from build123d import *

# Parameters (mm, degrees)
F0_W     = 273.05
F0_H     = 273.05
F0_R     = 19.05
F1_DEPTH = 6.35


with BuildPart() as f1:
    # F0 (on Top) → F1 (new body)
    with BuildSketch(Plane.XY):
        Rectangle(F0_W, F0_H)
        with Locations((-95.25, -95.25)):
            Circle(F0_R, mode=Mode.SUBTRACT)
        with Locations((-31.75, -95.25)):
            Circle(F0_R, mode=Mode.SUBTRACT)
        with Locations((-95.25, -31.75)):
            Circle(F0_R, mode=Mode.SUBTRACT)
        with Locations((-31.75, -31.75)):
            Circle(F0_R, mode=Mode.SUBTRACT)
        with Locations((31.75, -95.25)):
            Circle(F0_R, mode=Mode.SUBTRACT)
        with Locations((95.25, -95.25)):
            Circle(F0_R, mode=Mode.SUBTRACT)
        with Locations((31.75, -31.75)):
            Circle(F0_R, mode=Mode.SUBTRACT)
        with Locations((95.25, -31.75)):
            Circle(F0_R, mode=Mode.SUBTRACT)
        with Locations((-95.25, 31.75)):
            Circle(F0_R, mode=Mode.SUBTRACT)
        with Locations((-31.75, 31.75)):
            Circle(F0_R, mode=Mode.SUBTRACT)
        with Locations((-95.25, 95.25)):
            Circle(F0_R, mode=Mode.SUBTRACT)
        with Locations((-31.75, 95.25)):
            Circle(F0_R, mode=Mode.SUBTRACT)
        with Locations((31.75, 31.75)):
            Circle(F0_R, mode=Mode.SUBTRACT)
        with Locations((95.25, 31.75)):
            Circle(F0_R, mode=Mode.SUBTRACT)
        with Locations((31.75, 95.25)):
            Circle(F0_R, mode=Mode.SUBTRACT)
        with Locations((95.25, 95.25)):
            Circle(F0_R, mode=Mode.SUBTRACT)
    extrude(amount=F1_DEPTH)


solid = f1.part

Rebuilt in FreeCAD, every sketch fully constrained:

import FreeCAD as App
import Part
import Sketcher

V = App.Vector
Q = App.Units.Quantity

doc = App.newDocument("Part")
body = doc.addObject("PartDesign::Body", "Body")

sketch1 = doc.addObject("Sketcher::SketchObject", "Sketch")
body.addObject(sketch1)
sketch1.AttachmentSupport = (doc.XY_Plane, [""])
sketch1.MapMode = "FlatFace"
sketch1.addGeometry(Part.LineSegment(V(-136.525, 136.525, 0), V(-136.525, -136.525, 0)), False)
sketch1.addGeometry(Part.LineSegment(V(-136.525, -136.525, 0), V(136.525, -136.525, 0)), False)
sketch1.addGeometry(Part.LineSegment(V(136.525, -136.525, 0), V(136.525, 136.525, 0)), False)
sketch1.addGeometry(Part.LineSegment(V(136.525, 136.525, 0), V(-136.525, 136.525, 0)), False)
sketch1.addGeometry(Part.Circle(V(-95.25, -95.25, 0), V(0, 0, 1), 19.05), False)
sketch1.addGeometry(Part.Circle(V(-31.75, -95.25, 0), V(0, 0, 1), 19.05), False)
sketch1.addGeometry(Part.Circle(V(-95.25, -31.75, 0), V(0, 0, 1), 19.05), False)
sketch1.addGeometry(Part.Circle(V(-31.75, -31.75, 0), V(0, 0, 1), 19.05), False)
sketch1.addGeometry(Part.Circle(V(31.75, -95.25, 0), V(0, 0, 1), 19.05), False)
sketch1.addGeometry(Part.Circle(V(95.25, -95.25, 0), V(0, 0, 1), 19.05), False)
sketch1.addGeometry(Part.Circle(V(31.75, -31.75, 0), V(0, 0, 1), 19.05), False)
sketch1.addGeometry(Part.Circle(V(95.25, -31.75, 0), V(0, 0, 1), 19.05), False)
sketch1.addGeometry(Part.Circle(V(-95.25, 31.75, 0), V(0, 0, 1), 19.05), False)
sketch1.addGeometry(Part.Circle(V(-31.75, 31.75, 0), V(0, 0, 1), 19.05), False)
sketch1.addGeometry(Part.Circle(V(-95.25, 95.25, 0), V(0, 0, 1), 19.05), False)
sketch1.addGeometry(Part.Circle(V(-31.75, 95.25, 0), V(0, 0, 1), 19.05), False)
sketch1.addGeometry(Part.Circle(V(31.75, 31.75, 0), V(0, 0, 1), 19.05), False)
sketch1.addGeometry(Part.Circle(V(95.25, 31.75, 0), V(0, 0, 1), 19.05), False)
sketch1.addGeometry(Part.Circle(V(31.75, 95.25, 0), V(0, 0, 1), 19.05), False)
sketch1.addGeometry(Part.Circle(V(95.25, 95.25, 0), V(0, 0, 1), 19.05), False)
sketch1.addConstraint(Sketcher.Constraint("Coincident", 0, 2, 1, 1))
sketch1.addConstraint(Sketcher.Constraint("Coincident", 1, 2, 2, 1))
sketch1.addConstraint(Sketcher.Constraint("Coincident", 2, 2, 3, 1))
sketch1.addConstraint(Sketcher.Constraint("Coincident", 3, 2, 0, 1))
sketch1.addConstraint(Sketcher.Constraint("Vertical", 0))
sketch1.addConstraint(Sketcher.Constraint("Horizontal", 1))
sketch1.addConstraint(Sketcher.Constraint("Vertical", 2))
sketch1.addConstraint(Sketcher.Constraint("Horizontal", 3))
sketch1.addConstraint(Sketcher.Constraint("Equal", 4, 5))
sketch1.addConstraint(Sketcher.Constraint("Equal", 5, 6))
sketch1.addConstraint(Sketcher.Constraint("Equal", 6, 7))
sketch1.addConstraint(Sketcher.Constraint("Equal", 7, 8))
sketch1.addConstraint(Sketcher.Constraint("Equal", 8, 9))
sketch1.addConstraint(Sketcher.Constraint("Equal", 9, 10))
sketch1.addConstraint(Sketcher.Constraint("Equal", 10, 11))
sketch1.addConstraint(Sketcher.Constraint("Equal", 11, 12))
sketch1.addConstraint(Sketcher.Constraint("Equal", 12, 13))
sketch1.addConstraint(Sketcher.Constraint("Equal", 13, 14))
sketch1.addConstraint(Sketcher.Constraint("Equal", 14, 15))
sketch1.addConstraint(Sketcher.Constraint("Equal", 15, 16))
sketch1.addConstraint(Sketcher.Constraint("Equal", 16, 17))
sketch1.addConstraint(Sketcher.Constraint("Equal", 17, 18))
sketch1.addConstraint(Sketcher.Constraint("Equal", 18, 19))
sketch1.addConstraint(Sketcher.Constraint("Symmetric", 11, 3, 12, 3, -1, 1))
sketch1.addConstraint(Sketcher.Constraint("Symmetric", 10, 3, 13, 3, -1, 1))
sketch1.addConstraint(Sketcher.Constraint("Symmetric", 9, 3, 14, 3, -1, 1))
sketch1.addConstraint(Sketcher.Constraint("Symmetric", 8, 3, 15, 3, -1, 1))
sketch1.addConstraint(Sketcher.Constraint("Symmetric", 7, 3, 16, 3, -1, 1))
sketch1.addConstraint(Sketcher.Constraint("Symmetric", 6, 3, 17, 3, -1, 1))
sketch1.addConstraint(Sketcher.Constraint("Symmetric", 5, 3, 18, 3, -1, 1))
sketch1.addConstraint(Sketcher.Constraint("Symmetric", 4, 3, 19, 3, -1, 1))
sketch1.addConstraint(Sketcher.Constraint("Symmetric", 0, 2, 2, 2, -1, 1))
sketch1.addConstraint(Sketcher.Constraint("Symmetric", 5, 3, 8, 3, -2))
sketch1.addConstraint(Sketcher.Constraint("Symmetric", 4, 3, 9, 3, -2))
sketch1.addConstraint(Sketcher.Constraint("Symmetric", 7, 3, 10, 3, -2))
sketch1.addConstraint(Sketcher.Constraint("Symmetric", 6, 3, 11, 3, -2))
sketch1.addConstraint(Sketcher.Constraint("Horizontal", 4, 3, 5, 3))
sketch1.addConstraint(Sketcher.Constraint("Horizontal", 6, 3, 7, 3))
sketch1.addConstraint(Sketcher.Constraint("Vertical", 4, 3, 6, 3))
sketch1.addConstraint(Sketcher.Constraint("Vertical", 5, 3, 7, 3))
sketch1.addConstraint(Sketcher.Constraint("Equal", 3, 0))
sketch1.addConstraint(Sketcher.Constraint("Diameter", 4, Q("1.5 in")))
sketch1.addConstraint(Sketcher.Constraint("DistanceX", 4, 3, 8, 3, Q("5 in")))
sketch1.addConstraint(Sketcher.Constraint("DistanceY", 4, 3, 12, 3, Q("5 in")))
sketch1.addConstraint(Sketcher.Constraint("DistanceX", 1, 1, 1, 2, Q("10.75 in")))
sketch1.addConstraint(Sketcher.Constraint("DistanceX", 4, 3, 5, 3, Q("2.5 in")))
sketch1.addConstraint(Sketcher.Constraint("DistanceY", 4, 3, 6, 3, Q("2.5 in")))
pad1 = doc.addObject("PartDesign::Pad", "Pad")
body.addObject(pad1)
pad1.Profile = sketch1
pad1.Length = Q("0.25 in")

doc.recompute()
